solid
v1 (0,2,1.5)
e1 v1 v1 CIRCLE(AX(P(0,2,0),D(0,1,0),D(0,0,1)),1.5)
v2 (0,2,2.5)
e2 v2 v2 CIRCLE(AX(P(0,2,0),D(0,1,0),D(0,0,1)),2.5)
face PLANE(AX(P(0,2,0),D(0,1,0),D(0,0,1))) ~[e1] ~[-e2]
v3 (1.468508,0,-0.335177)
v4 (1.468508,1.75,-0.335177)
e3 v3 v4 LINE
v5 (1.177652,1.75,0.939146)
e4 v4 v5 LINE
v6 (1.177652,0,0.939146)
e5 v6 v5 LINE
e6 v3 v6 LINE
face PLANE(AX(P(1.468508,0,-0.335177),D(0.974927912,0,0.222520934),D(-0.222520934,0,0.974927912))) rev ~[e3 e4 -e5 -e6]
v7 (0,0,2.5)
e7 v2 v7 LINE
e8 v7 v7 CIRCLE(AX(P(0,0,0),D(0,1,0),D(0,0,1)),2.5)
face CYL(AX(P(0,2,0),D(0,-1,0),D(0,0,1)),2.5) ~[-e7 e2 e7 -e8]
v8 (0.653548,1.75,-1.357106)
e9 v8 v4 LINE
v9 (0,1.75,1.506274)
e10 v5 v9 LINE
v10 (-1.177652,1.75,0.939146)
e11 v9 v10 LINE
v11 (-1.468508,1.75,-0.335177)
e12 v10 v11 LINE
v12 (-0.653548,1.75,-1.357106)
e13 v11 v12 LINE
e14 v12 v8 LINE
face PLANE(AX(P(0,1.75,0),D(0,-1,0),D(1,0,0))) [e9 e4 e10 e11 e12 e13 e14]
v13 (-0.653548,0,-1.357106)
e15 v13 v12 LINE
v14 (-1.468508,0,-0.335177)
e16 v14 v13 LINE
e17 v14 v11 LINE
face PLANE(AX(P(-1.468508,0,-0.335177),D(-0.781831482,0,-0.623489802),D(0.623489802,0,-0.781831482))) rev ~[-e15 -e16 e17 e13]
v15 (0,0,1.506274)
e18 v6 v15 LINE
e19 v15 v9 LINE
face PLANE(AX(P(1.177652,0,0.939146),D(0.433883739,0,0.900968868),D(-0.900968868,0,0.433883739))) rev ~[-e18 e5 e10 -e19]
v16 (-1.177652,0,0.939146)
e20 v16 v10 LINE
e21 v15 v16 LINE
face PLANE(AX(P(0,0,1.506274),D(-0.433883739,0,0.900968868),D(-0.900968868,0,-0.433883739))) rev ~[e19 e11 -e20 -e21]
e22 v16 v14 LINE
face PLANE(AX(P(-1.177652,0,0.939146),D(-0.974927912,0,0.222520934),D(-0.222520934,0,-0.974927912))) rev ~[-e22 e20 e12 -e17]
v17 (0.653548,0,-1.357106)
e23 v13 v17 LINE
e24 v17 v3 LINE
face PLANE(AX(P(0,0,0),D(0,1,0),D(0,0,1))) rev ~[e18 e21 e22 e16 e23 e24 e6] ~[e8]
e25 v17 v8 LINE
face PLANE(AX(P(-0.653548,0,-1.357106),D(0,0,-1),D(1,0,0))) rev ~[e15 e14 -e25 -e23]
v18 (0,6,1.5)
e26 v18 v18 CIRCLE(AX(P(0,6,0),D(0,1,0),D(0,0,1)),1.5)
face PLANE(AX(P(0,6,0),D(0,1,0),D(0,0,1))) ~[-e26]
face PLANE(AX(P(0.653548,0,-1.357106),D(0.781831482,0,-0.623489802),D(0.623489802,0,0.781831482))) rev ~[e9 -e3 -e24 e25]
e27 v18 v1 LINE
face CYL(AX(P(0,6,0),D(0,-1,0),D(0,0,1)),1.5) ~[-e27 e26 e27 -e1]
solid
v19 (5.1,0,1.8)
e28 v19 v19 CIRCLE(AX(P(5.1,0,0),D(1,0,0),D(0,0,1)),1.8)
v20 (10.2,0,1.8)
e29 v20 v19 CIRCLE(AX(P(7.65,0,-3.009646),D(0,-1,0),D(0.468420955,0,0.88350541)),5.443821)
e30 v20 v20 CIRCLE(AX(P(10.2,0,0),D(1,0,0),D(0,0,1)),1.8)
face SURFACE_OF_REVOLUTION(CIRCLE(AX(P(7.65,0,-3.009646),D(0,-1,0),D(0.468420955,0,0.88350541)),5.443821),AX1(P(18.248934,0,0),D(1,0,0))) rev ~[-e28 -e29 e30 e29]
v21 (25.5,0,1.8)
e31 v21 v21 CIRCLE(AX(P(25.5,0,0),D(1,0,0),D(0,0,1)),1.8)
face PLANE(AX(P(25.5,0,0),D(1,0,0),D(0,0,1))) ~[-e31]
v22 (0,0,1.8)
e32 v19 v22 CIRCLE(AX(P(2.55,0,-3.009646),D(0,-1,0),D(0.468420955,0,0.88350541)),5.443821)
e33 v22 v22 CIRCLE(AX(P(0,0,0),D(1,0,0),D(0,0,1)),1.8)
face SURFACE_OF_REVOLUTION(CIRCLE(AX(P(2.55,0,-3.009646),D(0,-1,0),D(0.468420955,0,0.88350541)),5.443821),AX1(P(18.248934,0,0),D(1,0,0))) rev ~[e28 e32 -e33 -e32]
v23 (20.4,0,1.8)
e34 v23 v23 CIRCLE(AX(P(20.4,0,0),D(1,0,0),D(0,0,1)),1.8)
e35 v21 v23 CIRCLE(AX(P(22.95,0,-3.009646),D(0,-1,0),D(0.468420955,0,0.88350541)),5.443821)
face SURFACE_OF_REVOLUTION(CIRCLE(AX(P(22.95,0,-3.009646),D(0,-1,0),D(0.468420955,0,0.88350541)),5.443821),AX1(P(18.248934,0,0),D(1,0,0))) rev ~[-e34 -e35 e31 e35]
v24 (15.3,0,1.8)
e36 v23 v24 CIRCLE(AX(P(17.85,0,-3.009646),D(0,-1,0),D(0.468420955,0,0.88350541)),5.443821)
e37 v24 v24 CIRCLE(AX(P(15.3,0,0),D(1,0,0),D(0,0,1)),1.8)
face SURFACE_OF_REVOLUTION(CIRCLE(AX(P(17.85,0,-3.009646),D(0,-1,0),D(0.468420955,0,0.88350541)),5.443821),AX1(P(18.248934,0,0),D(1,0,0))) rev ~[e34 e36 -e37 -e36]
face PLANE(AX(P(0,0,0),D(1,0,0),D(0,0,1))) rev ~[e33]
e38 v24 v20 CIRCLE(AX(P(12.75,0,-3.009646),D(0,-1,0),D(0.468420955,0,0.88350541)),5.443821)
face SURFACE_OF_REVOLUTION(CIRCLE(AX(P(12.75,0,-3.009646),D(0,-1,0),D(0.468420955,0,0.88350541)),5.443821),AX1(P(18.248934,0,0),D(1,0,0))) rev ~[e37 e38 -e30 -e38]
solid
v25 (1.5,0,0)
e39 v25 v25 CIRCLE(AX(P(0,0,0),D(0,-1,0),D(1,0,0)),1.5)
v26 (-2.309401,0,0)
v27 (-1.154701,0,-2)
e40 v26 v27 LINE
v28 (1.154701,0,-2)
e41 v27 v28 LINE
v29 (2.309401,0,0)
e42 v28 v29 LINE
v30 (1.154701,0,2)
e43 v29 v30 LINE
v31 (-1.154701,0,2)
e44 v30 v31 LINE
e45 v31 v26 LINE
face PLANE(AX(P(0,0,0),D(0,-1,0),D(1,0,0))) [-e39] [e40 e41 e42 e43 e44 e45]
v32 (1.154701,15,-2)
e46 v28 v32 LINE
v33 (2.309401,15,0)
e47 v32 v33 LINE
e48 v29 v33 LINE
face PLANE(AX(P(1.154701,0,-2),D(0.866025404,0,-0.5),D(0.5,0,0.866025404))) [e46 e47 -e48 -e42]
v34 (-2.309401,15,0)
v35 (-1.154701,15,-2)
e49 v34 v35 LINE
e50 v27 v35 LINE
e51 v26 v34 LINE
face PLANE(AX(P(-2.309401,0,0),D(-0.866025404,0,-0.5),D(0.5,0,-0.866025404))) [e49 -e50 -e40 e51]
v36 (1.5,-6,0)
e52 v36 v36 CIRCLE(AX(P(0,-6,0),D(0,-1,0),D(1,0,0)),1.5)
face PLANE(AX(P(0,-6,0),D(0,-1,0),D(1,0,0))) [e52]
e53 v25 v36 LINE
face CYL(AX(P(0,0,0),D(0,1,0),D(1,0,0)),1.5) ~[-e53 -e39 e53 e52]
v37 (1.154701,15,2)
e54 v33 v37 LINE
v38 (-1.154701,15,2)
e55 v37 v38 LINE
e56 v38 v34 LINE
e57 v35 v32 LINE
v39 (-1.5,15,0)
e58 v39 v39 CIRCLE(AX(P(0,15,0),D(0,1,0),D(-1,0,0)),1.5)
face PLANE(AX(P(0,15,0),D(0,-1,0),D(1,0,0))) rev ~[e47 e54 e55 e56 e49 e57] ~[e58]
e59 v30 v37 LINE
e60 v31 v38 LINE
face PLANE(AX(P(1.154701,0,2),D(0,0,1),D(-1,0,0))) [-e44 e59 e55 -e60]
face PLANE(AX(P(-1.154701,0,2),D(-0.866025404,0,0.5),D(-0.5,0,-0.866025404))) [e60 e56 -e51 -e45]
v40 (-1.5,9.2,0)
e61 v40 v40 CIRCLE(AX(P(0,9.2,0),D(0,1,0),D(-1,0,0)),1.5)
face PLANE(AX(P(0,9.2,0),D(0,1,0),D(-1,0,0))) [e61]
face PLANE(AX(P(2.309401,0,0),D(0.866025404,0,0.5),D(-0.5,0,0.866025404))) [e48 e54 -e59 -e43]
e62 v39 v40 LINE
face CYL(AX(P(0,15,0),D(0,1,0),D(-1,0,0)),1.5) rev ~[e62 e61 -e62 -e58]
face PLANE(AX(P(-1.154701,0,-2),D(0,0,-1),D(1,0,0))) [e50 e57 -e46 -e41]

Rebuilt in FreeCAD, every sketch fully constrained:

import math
import FreeCAD as App
import Part
import Sketcher

V = App.Vector
Q = App.Units.Quantity

doc = App.newDocument("Part")
body = doc.addObject("PartDesign::Body", "Body")

sketch1 = doc.addObject("Sketcher::SketchObject", "Sketch")
body.addObject(sketch1)
sketch1.AttachmentSupport = (doc.XZ_Plane, [""])
sketch1.MapMode = "FlatFace"
sketch1.addGeometry(Part.LineSegment(V(0, 1.8, 0), V(0, 0, 0)), False)
sketch1.addGeometry(Part.LineSegment(V(0, 0, 0), V(25.5, 0, 0)), False)
sketch1.addGeometry(Part.LineSegment(V(25.5, 0, 0), V(25.5, 1.8, 0)), False)
sketch1.addGeometry(Part.ArcOfCircle(Part.Circle(V(22.9, -3, 0), V(0, 0, 1), 5.4), math.radians(62), math.radians(118)), False)
sketch1.addGeometry(Part.ArcOfCircle(Part.Circle(V(17.9, -3, 0), V(0, 0, 1), 5.4), math.radians(62), math.radians(118)), False)
sketch1.addGeometry(Part.ArcOfCircle(Part.Circle(V(12.8, -3, 0), V(0, 0, 1), 5.4), math.radians(62), math.radians(118)), False)
sketch1.addGeometry(Part.ArcOfCircle(Part.Circle(V(7.7, -3, 0), V(0, 0, 1), 5.4), math.radians(62), math.radians(118)), False)
sketch1.addGeometry(Part.ArcOfCircle(Part.Circle(V(2.5, -3, 0), V(0, 0, 1), 5.4), math.radians(62), math.radians(118)), False)
sketch1.addConstraint(Sketcher.Constraint("Coincident", 0, 2, 1, 1))
sketch1.addConstraint(Sketcher.Constraint("Coincident", 1, 2, 2, 1))
sketch1.addConstraint(Sketcher.Constraint("Coincident", 2, 2, 3, 1))
sketch1.addConstraint(Sketcher.Constraint("Coincident", 3, 2, 4, 1))
sketch1.addConstraint(Sketcher.Constraint("Coincident", 4, 2, 5, 1))
sketch1.addConstraint(Sketcher.Constraint("Coincident", 5, 2, 6, 1))
sketch1.addConstraint(Sketcher.Constraint("Coincident", 6, 2, 7, 1))
sketch1.addConstraint(Sketcher.Constraint("Coincident", 7, 2, 0, 1))
sketch1.addConstraint(Sketcher.Constraint("Vertical", 0))
sketch1.addConstraint(Sketcher.Constraint("Horizontal", 1))
sketch1.addConstraint(Sketcher.Constraint("Vertical", 2))
sketch1.addConstraint(Sketcher.Constraint("Coincident", 0, 2, -1, 1))
sketch1.addConstraint(Sketcher.Constraint("Equal", 3, 4))
sketch1.addConstraint(Sketcher.Constraint("Equal", 4, 5))
sketch1.addConstraint(Sketcher.Constraint("Equal", 5, 6))
sketch1.addConstraint(Sketcher.Constraint("Equal", 6, 7))
sketch1.addConstraint(Sketcher.Constraint("Horizontal", 3, 3, 4, 3))
sketch1.addConstraint(Sketcher.Constraint("Horizontal", 4, 3, 5, 3))
sketch1.addConstraint(Sketcher.Constraint("Horizontal", 5, 3, 6, 3))
sketch1.addConstraint(Sketcher.Constraint("Horizontal", 6, 3, 7, 3))
sketch1.addConstraint(Sketcher.Constraint("Horizontal", 2, 2, 3, 2))
sketch1.addConstraint(Sketcher.Constraint("Horizontal", 3, 2, 4, 2))
sketch1.addConstraint(Sketcher.Constraint("Horizontal", 4, 2, 5, 2))
sketch1.addConstraint(Sketcher.Constraint("Horizontal", 5, 2, 6, 2))
sketch1.addConstraint(Sketcher.Constraint("Horizontal", 6, 2, 7, 2))
sketch1.addConstraint(Sketcher.Constraint("DistanceX", 1, 1, 1, 2, Q("25.5 mm")))
sketch1.addConstraint(Sketcher.Constraint("DistanceY", 0, 2, 0, 1, Q("1.8 mm")))
sketch1.addConstraint(Sketcher.Constraint("Radius", 3, Q("5.443821 mm")))
revolution = doc.addObject("PartDesign::Revolution", "Revolution")
body.addObject(revolution)
revolution.Profile = sketch1
revolution.ReferenceAxis = (sketch1, ["H_Axis"])
revolution.Angle = 360
body2 = doc.addObject("PartDesign::Body", "Body001")

sketch2 = doc.addObject("Sketcher::SketchObject", "Sketch001")
body2.addObject(sketch2)
sketch2.AttachmentSupport = (doc.getObject("XZ_Plane001"), [""])
sketch2.MapMode = "FlatFace"
sketch2.addGeometry(Part.LineSegment(V(-1.2, 2, 0), V(-2.3, 0, 0)), False)
sketch2.addGeometry(Part.LineSegment(V(-2.3, 0, 0), V(-1.2, -2, 0)), False)
sketch2.addGeometry(Part.LineSegment(V(-1.2, -2, 0), V(1.2, -2, 0)), False)
sketch2.addGeometry(Part.LineSegment(V(1.2, -2, 0), V(2.3, 0, 0)), False)
sketch2.addGeometry(Part.LineSegment(V(2.3, 0, 0), V(1.2, 2, 0)), False)
sketch2.addGeometry(Part.LineSegment(V(1.2, 2, 0), V(-1.2, 2, 0)), False)
sketch2.addConstraint(Sketcher.Constraint("Coincident", 0, 2, 1, 1))
sketch2.addConstraint(Sketcher.Constraint("Coincident", 1, 2, 2, 1))
sketch2.addConstraint(Sketcher.Constraint("Coincident", 2, 2, 3, 1))
sketch2.addConstraint(Sketcher.Constraint("Coincident", 3, 2, 4, 1))
sketch2.addConstraint(Sketcher.Constraint("Coincident", 4, 2, 5, 1))
sketch2.addConstraint(Sketcher.Constraint("Coincident", 5, 2, 0, 1))
sketch2.addConstraint(Sketcher.Constraint("Horizontal", 2))
sketch2.addConstraint(Sketcher.Constraint("Horizontal", 5))
sketch2.addConstraint(Sketcher.Constraint("Symmetric", 0, 2, 3, 2, -1, 1))
sketch2.addConstraint(Sketcher.Constraint("Symmetric", 1, 2, 4, 2, -1, 1))
sketch2.addConstraint(Sketcher.Constraint("PointOnObject", 0, 2, -1))
sketch2.addConstraint(Sketcher.Constraint("Parallel", 0, 3))
sketch2.addConstraint(Sketcher.Constraint("Vertical", 2, 2, 4, 2))
sketch2.addConstraint(Sketcher.Constraint("Angle", 0, Q("-120 deg")))
sketch2.addConstraint(Sketcher.Constraint("DistanceY", 1, 2, -1, 1, Q("2 mm")))
sketch2.addConstraint(Sketcher.Constraint("DistanceX", 2, 1, 2, 2, Q("2.309401 mm")))
pad1 = doc.addObject("PartDesign::Pad", "Pad")
body2.addObject(pad1)
pad1.Profile = sketch2
pad1.Length = 15
pad1.Reversed = True

sketch3 = doc.addObject("Sketcher::SketchObject", "Sketch002")
body2.addObject(sketch3)
sketch3.AttachmentSupport = (doc.getObject("XZ_Plane001"), [""])
sketch3.MapMode = "FlatFace"
sketch3.addGeometry(Part.Circle(V(0, 0, 0), V(0, 0, 1), 1.5), False)
sketch3.addConstraint(Sketcher.Constraint("Coincident", 0, 3, -1, 1))
sketch3.addConstraint(Sketcher.Constraint("Diameter", 0, Q("3 mm")))
pad2 = doc.addObject("PartDesign::Pad", "Pad001")
body2.addObject(pad2)
pad2.Profile = sketch3
pad2.Length = 6

sketch4 = doc.addObject("Sketcher::SketchObject", "Sketch003")
body2.addObject(sketch4)
sketch4.AttachmentSupport = (doc.getObject("XZ_Plane001"), [""])
sketch4.MapMode = "FlatFace"
sketch4.AttachmentOffset = App.Placement(V(0, 0, -15), App.Rotation())
sketch4.addGeometry(Part.Circle(V(0, 0, 0), V(0, 0, 1), 1.5), False)
sketch4.addConstraint(Sketcher.Constraint("Coincident", 0, 3, -1, 1))
sketch4.addConstraint(Sketcher.Constraint("Diameter", 0, Q("3 mm")))
pocket1 = doc.addObject("PartDesign::Pocket", "Pocket")
body2.addObject(pocket1)
pocket1.Profile = sketch4
pocket1.Length = 5.8
pocket1.Reversed = True
body3 = doc.addObject("PartDesign::Body", "Body002")

sketch5 = doc.addObject("Sketcher::SketchObject", "Sketch004")
body3.addObject(sketch5)
sketch5.AttachmentSupport = (doc.getObject("YZ_Plane002"), [""])
sketch5.MapMode = "FlatFace"
sketch5.addGeometry(Part.LineSegment(V(0, 2.5, 0), V(0, 0, 0)), False)
sketch5.addGeometry(Part.LineSegment(V(0, 0, 0), V(6, 0, 0)), False)
sketch5.addGeometry(Part.LineSegment(V(6, 0, 0), V(6, 1.5, 0)), False)
sketch5.addGeometry(Part.LineSegment(V(6, 1.5, 0), V(2, 1.5, 0)), False)
sketch5.addGeometry(Part.LineSegment(V(2, 1.5, 0), V(2, 2.5, 0)), False)
sketch5.addGeometry(Part.LineSegment(V(2, 2.5, 0), V(0, 2.5, 0)), False)
sketch5.addConstraint(Sketcher.Constraint("Coincident", 0, 2, 1, 1))
sketch5.addConstraint(Sketcher.Constraint("Coincident", 1, 2, 2, 1))
sketch5.addConstraint(Sketcher.Constraint("Coincident", 2, 2, 3, 1))
sketch5.addConstraint(Sketcher.Constraint("Coincident", 3, 2, 4, 1))
sketch5.addConstraint(Sketcher.Constraint("Coincident", 4, 2, 5, 1))
sketch5.addConstraint(Sketcher.Constraint("Coincident", 5, 2, 0, 1))
sketch5.addConstraint(Sketcher.Constraint("Vertical", 0))
sketch5.addConstraint(Sketcher.Constraint("Horizontal", 1))
sketch5.addConstraint(Sketcher.Constraint("Vertical", 2))
sketch5.addConstraint(Sketcher.Constraint("Horizontal", 3))
sketch5.addConstraint(Sketcher.Constraint("Vertical", 4))
sketch5.addConstraint(Sketcher.Constraint("Horizontal", 5))
sketch5.addConstraint(Sketcher.Constraint("Coincident", 0, 2, -1, 1))
sketch5.addConstraint(Sketcher.Constraint("DistanceX", 1, 1, 1, 2, Q("6 mm")))
sketch5.addConstraint(Sketcher.Constraint("DistanceX", 3, 2, 3, 1, Q("4 mm")))
sketch5.addConstraint(Sketcher.Constraint("DistanceY", 4, 1, 4, 2, Q("1 mm")))
sketch5.addConstraint(Sketcher.Constraint("DistanceY", 0, 2, 0, 1, Q("2.5 mm")))
revolution2 = doc.addObject("PartDesign::Revolution", "Revolution001")
body3.addObject(revolution2)
revolution2.Profile = sketch5
revolution2.ReferenceAxis = (sketch5, ["H_Axis"])
revolution2.Angle = 360

sketch6 = doc.addObject("Sketcher::SketchObject", "Sketch005")
body3.addObject(sketch6)
sketch6.AttachmentSupport = (doc.getObject("XZ_Plane002"), [""])
sketch6.MapMode = "FlatFace"
sketch6.addGeometry(Part.LineSegment(V(-0.7, -1.4, 0), V(0.7, -1.4, 0)), False)
sketch6.addGeometry(Part.LineSegment(V(0.7, -1.4, 0), V(1.5, -0.3, 0)), False)
sketch6.addGeometry(Part.LineSegment(V(1.5, -0.3, 0), V(1.2, 0.9, 0)), False)
sketch6.addGeometry(Part.LineSegment(V(1.2, 0.9, 0), V(0, 1.5, 0)), False)
sketch6.addGeometry(Part.LineSegment(V(0, 1.5, 0), V(-1.2, 0.9, 0)), False)
sketch6.addGeometry(Part.LineSegment(V(-1.2, 0.9, 0), V(-1.5, -0.3, 0)), False)
sketch6.addGeometry(Part.LineSegment(V(-1.5, -0.3, 0), V(-0.7, -1.4, 0)), False)
sketch6.addConstraint(Sketcher.Constraint("Coincident", 0, 2, 1, 1))
sketch6.addConstraint(Sketcher.Constraint("Coincident", 1, 2, 2, 1))
sketch6.addConstraint(Sketcher.Constraint("Coincident", 2, 2, 3, 1))
sketch6.addConstraint(Sketcher.Constraint("Coincident", 3, 2, 4, 1))
sketch6.addConstraint(Sketcher.Constraint("Coincident", 4, 2, 5, 1))
sketch6.addConstraint(Sketcher.Constraint("Coincident", 5, 2, 6, 1))
sketch6.addConstraint(Sketcher.Constraint("Coincident", 6, 2, 0, 1))
sketch6.addConstraint(Sketcher.Constraint("Horizontal", 0))
sketch6.addConstraint(Sketcher.Constraint("Symmetric", 2, 2, 4, 2, -2))
sketch6.addConstraint(Sketcher.Constraint("Symmetric", 1, 2, 5, 2, -2))
sketch6.addConstraint(Sketcher.Constraint("PointOnObject", 3, 2, -2))
sketch6.addConstraint(Sketcher.Constraint("Equal", 1, 2))
sketch6.addConstraint(Sketcher.Constraint("Equal", 2, 3))
sketch6.addConstraint(Sketcher.Constraint("Equal", 5, 6))
sketch6.addConstraint(Sketcher.Constraint("DistanceX", 4, 2, 0, 2, Q("1.8312 mm")))
sketch6.addConstraint(Sketcher.Constraint("DistanceX", 0, 1, 0, 2, Q("1.307095 mm")))
sketch6.addConstraint(Sketcher.Constraint("DistanceX", -1, 1, 1, 2, Q("1.468508 mm")))
sketch6.addConstraint(Sketcher.Constraint("DistanceY", 0, 2, 1, 2, Q("1.021928 mm")))
sketch6.addConstraint(Sketcher.Constraint("DistanceY", 0, 2, -1, 1, Q("1.357106 mm")))
pocket2 = doc.addObject("PartDesign::Pocket", "Pocket001")
body3.addObject(pocket2)
pocket2.Profile = sketch6
pocket2.Length = 1.75

doc.recompute()
